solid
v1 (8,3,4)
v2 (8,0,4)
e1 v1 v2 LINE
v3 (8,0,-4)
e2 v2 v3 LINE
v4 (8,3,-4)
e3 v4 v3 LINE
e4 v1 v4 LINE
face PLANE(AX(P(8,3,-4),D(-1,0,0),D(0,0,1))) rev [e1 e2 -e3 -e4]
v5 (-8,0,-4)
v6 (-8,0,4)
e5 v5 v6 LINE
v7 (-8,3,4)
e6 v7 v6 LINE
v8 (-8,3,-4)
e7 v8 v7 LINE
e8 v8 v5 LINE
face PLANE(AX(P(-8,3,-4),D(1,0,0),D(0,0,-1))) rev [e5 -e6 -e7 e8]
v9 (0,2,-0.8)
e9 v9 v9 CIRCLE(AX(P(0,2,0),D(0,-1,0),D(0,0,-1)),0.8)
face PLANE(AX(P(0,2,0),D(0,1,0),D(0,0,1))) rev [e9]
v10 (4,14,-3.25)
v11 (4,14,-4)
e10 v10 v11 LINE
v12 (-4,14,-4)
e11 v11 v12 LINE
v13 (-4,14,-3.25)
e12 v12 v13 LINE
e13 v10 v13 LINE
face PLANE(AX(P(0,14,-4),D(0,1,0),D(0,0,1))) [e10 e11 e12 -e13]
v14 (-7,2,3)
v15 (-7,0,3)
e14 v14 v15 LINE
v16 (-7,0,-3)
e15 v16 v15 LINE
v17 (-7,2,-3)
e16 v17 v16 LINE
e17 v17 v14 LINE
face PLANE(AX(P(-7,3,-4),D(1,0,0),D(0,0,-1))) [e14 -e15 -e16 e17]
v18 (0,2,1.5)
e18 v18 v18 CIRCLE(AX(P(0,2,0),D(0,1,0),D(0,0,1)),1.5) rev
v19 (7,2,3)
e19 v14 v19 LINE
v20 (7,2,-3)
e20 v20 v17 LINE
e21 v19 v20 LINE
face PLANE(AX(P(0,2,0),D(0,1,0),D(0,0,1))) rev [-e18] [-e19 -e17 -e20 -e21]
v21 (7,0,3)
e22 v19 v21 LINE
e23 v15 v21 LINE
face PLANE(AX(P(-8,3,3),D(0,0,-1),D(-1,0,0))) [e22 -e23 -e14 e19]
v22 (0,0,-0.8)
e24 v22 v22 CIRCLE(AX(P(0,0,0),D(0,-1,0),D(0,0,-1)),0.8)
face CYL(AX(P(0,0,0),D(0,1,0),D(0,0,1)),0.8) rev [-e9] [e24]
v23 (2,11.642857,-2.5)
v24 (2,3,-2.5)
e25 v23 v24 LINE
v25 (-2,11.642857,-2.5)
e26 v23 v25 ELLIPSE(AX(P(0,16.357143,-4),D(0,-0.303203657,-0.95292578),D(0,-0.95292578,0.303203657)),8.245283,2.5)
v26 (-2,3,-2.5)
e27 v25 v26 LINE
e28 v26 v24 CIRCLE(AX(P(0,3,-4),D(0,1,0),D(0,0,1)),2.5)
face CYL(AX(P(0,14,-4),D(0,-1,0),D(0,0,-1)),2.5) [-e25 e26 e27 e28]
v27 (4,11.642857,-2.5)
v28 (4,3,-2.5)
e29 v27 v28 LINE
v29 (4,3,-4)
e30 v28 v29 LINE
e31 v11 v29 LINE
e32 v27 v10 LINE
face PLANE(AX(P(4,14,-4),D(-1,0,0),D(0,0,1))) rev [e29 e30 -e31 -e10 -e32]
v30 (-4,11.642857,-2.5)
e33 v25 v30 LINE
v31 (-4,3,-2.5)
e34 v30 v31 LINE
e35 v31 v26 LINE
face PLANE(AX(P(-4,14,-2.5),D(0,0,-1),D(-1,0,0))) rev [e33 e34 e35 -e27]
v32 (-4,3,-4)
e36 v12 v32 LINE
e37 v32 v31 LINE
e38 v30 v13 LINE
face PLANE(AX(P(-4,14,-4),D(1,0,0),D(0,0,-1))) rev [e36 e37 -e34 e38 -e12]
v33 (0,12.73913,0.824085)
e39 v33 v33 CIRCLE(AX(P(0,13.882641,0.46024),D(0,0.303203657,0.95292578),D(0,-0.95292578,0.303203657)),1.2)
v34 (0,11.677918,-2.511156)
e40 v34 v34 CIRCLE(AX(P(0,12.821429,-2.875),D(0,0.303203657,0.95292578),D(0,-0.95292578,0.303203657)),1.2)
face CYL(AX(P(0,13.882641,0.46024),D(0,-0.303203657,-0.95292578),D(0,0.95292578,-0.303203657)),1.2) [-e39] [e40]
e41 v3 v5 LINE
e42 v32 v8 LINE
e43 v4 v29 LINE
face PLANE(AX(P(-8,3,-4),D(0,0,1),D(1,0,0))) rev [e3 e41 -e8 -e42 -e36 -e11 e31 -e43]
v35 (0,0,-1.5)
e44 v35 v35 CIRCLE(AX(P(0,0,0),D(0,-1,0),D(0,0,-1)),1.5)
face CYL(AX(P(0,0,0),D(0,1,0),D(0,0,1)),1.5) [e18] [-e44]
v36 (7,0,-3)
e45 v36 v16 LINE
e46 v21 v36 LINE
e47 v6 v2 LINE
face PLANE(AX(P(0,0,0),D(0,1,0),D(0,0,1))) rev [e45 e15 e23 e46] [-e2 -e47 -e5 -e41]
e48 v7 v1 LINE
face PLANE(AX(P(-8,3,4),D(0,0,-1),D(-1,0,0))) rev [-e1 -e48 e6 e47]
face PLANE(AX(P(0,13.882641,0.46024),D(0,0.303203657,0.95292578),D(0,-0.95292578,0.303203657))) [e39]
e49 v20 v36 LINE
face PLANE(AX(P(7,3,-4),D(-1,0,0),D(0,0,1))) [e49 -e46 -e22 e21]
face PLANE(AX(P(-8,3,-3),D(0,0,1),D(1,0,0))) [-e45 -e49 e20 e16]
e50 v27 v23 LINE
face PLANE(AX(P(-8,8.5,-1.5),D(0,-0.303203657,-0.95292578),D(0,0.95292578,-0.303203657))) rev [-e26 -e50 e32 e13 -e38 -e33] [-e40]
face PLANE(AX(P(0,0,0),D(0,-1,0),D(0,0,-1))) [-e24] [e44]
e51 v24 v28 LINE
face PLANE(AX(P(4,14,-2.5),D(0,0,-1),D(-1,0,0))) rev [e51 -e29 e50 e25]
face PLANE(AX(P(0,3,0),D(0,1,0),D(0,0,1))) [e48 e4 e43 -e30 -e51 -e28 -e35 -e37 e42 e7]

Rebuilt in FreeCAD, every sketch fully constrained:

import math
import FreeCAD as App
import Part
import Sketcher

V = App.Vector
Q = App.Units.Quantity


def faces_at(feature, points):
    """Names of the faces that lie closest to the given points."""
    faces = feature.Shape.Faces
    near = lambda p: min(range(len(faces)), key=lambda i: faces[i].distToShape(Part.Vertex(*p))[0])
    return sorted({f"Face{near(p) + 1}" for p in points})


def add_polygon(sketch, points):
    """Adds a closed chain of lines whose ends are joined by coincident constraints."""
    first, n = sketch.GeometryCount, len(points)
    for a, b in zip(points, points[1:] + points[:1]):
        sketch.addGeometry(Part.LineSegment(App.Vector(*a, 0), App.Vector(*b, 0)), False)
    for i in range(n):
        sketch.addConstraint(Sketcher.Constraint("Coincident", first + i, 2, first + (i + 1) % n, 1))

doc = App.newDocument("Part")
params = doc.addObject("Spreadsheet::Sheet", "Params")
for row, (alias, value) in enumerate([
    ("sketch1_width", "16 mm"),
    ("sketch1_height", "8 mm"),
    ("pad1_length", "3 mm"),
    ("thickness_wall", "1 mm"),
    ("sketch2_diameter", "3 mm"),
    ("sketch2_diameter2", "1.6 mm"),
    ("pad2_length", "2 mm"),
    ("sketch3_radius", "2.5 mm"),
    ("sketch3_width", "8 mm"),
    ("sketch3_width2", "2 mm"),
    ("pad3_length", "11 mm"),
    ("sketch4_width", "5.5 mm"),
    ("sketch4_height", "1.75 mm"),
    ("sketch5_diameter", "2.4 mm"),
    ("pad4_length", "3.5 mm"),
], start=1):
    params.set(f"A{row}", alias)
    params.set(f"B{row}", "=" + value)
    params.setAlias(f"B{row}", alias)

body = doc.addObject("PartDesign::Body", "Body")

# Sketch on XZ plane
sketch1 = body.newObject("Sketcher::SketchObject", "Sketch")
sketch1.AttachmentSupport = (doc.getObject("XZ_Plane"), [""])
sketch1.MapMode = "FlatFace"
add_polygon(sketch1, [(-8, -4), (-8, 4), (8, 4), (8, -4)])  # lines 0-3
sketch1.addConstraint([
    Sketcher.Constraint("Vertical", 0),
    Sketcher.Constraint("Horizontal", 1),
    Sketcher.Constraint("Vertical", 2),
    Sketcher.Constraint("Horizontal", 3),
    Sketcher.Constraint("Symmetric", 0, 2, 2, 2, -1, 1),
    Sketcher.Constraint("DistanceX", 1, 1, 1, 2, Q("16 mm")),
    Sketcher.Constraint("DistanceY", 0, 1, 0, 2, Q("8 mm")),
])
sketch1.setExpression("Constraints[9]", "Params.sketch1_width")
sketch1.setExpression("Constraints[10]", "Params.sketch1_height")
pad1 = body.newObject("PartDesign::Pad", "Pad")
pad1.Profile = sketch1
pad1.setExpression("Length", "Params.pad1_length")
pad1.Reversed = True
doc.recompute()

thickness = body.newObject("PartDesign::Thickness", "Thickness")
thickness.Base = (pad1, faces_at(pad1, [(0, 0, 0)]))
thickness.setExpression("Value", "Params.thickness_wall")
thickness.Reversed = True
thickness.Join = "Intersection"

# Sketch on XZ plane
sketch2 = body.newObject("Sketcher::SketchObject", "Sketch001")
sketch2.AttachmentSupport = (doc.getObject("XZ_Plane"), [""])
sketch2.MapMode = "FlatFace"
sketch2.AttachmentOffset = App.Placement(V(0, 0, -2), App.Rotation())
sketch2.addGeometry([
    Part.Circle(V(0, 0, 0), V(0, 0, 1), 1.5),
    Part.Circle(V(0, 0, 0), V(0, 0, 1), 0.8),
], False)
sketch2.addConstraint([
    Sketcher.Constraint("Coincident", 0, 3, -1, 1),
    Sketcher.Constraint("Coincident", 1, 3, -1, 1),
    Sketcher.Constraint("Diameter", 0, Q("3 mm")),
    Sketcher.Constraint("Diameter", 1, Q("1.6 mm")),
])
sketch2.setExpression("Constraints[2]", "Params.sketch2_diameter")
sketch2.setExpression("Constraints[3]", "Params.sketch2_diameter2")
pad2 = body.newObject("PartDesign::Pad", "Pad001")
pad2.Profile = sketch2
pad2.setExpression("Length", "Params.pad2_length")

# Sketch on XZ plane
sketch3 = body.newObject("Sketcher::SketchObject", "Sketch002")
sketch3.AttachmentSupport = (doc.getObject("XZ_Plane"), [""])
sketch3.MapMode = "FlatFace"
sketch3.AttachmentOffset = App.Placement(V(0, 0, -3), App.Rotation())
sketch3.addGeometry([
    Part.LineSegment(V(4, -4, 0), V(-4, -4, 0)),  # 0
    Part.LineSegment(V(-4, -4, 0), V(-4, -2.5, 0)),  # 1
    Part.LineSegment(V(-4, -2.5, 0), V(-2, -2.5, 0)),  # 2
    Part.ArcOfCircle(Part.Circle(V(0, -4, 0), V(0, 0, 1), 2.5), math.radians(37), math.radians(143)),  # 3
    Part.LineSegment(V(2, -2.5, 0), V(4, -2.5, 0)),  # 4
    Part.LineSegment(V(4, -2.5, 0), V(4, -4, 0)),  # 5
], False)
sketch3.addConstraint([
    Sketcher.Constraint("Coincident", 0, 2, 1, 1),
    Sketcher.Constraint("Coincident", 1, 2, 2, 1),
    Sketcher.Constraint("Coincident", 2, 2, 3, 2),
    Sketcher.Constraint("Coincident", 3, 1, 4, 1),
    Sketcher.Constraint("Coincident", 4, 2, 5, 1),
    Sketcher.Constraint("Coincident", 5, 2, 0, 1),
    Sketcher.Constraint("Horizontal", 0),
    Sketcher.Constraint("Vertical", 1),
    Sketcher.Constraint("Horizontal", 2),
    Sketcher.Constraint("Horizontal", 4),
    Sketcher.Constraint("Vertical", 5),
    Sketcher.Constraint("Symmetric", 2, 2, 3, 1, -2),
    Sketcher.Constraint("Horizontal", 3, 3, 0, 2),
    Sketcher.Constraint("Equal", 2, 4),
    Sketcher.Constraint("Radius", 3, Q("2.5 mm")),
    Sketcher.Constraint("DistanceX", 0, 2, 0, 1, Q("8 mm")),
    Sketcher.Constraint("DistanceX", 2, 1, 2, 2, Q("2 mm")),
    Sketcher.Constraint("DistanceY", 3, 3, -1, 1, Q("4 mm")),
])
sketch3.setExpression("Constraints[14]", "Params.sketch3_radius")
sketch3.setExpression("Constraints[15]", "Params.sketch3_width")
sketch3.setExpression("Constraints[16]", "Params.sketch3_width2")
pad3 = body.newObject("PartDesign::Pad", "Pad002")
pad3.Profile = sketch3
pad3.setExpression("Length", "Params.pad3_length")
pad3.Reversed = True

# Sketch on YZ plane
sketch4 = body.newObject("Sketcher::SketchObject", "Sketch003")
sketch4.AttachmentSupport = (doc.getObject("YZ_Plane"), [""])
sketch4.MapMode = "FlatFace"
sketch4.AttachmentOffset = App.Placement(V(0, 0, 4), App.Rotation())
add_polygon(sketch4, [(14, -3.2), (14, -1.5), (8.5, -1.5)])  # lines 0-2
sketch4.addConstraint([
    Sketcher.Constraint("Vertical", 0),
    Sketcher.Constraint("Horizontal", 1),
    Sketcher.Constraint("DistanceX", 1, 2, 1, 1, Q("5.5 mm")),
    Sketcher.Constraint("DistanceX", -1, 1, 0, 2, Q("14 mm")),
    Sketcher.Constraint("DistanceY", 0, 1, 0, 2, Q("1.75 mm")),
    Sketcher.Constraint("DistanceY", 0, 2, -1, 1, Q("1.5 mm")),
])
sketch4.setExpression("Constraints[5]", "Params.sketch4_width")
sketch4.setExpression("Constraints[7]", "Params.sketch4_height")
pocket1 = body.newObject("PartDesign::Pocket", "Pocket")
pocket1.Profile = sketch4
pocket1.Type = "ThroughAll"

# Sketch on an angled plane
sketch5 = body.newObject("Sketcher::SketchObject", "Sketch004")
sketch5.Placement = App.Placement(V(0, 0.34803, 1.093809), App.Rotation(V(1, 0, 0), V(0, 0.95292578, -0.303203657), V(0, 0.303203657, 0.95292578), "ZXY"))
sketch5.addGeometry(Part.Circle(V(0, 13.1, 0), V(0, 0, 1), 1.2), False)
sketch5.addConstraint([
    Sketcher.Constraint("PointOnObject", 0, 3, -2),
    Sketcher.Constraint("Diameter", 0, Q("2.4 mm")),
    Sketcher.Constraint("DistanceY", -1, 1, 0, 3, Q("13.08958 mm")),
])
sketch5.setExpression("Constraints[1]", "Params.sketch5_diameter")
pad4 = body.newObject("PartDesign::Pad", "Pad003")
pad4.Profile = sketch5
pad4.setExpression("Length", "Params.pad4_length")

doc.recompute()
